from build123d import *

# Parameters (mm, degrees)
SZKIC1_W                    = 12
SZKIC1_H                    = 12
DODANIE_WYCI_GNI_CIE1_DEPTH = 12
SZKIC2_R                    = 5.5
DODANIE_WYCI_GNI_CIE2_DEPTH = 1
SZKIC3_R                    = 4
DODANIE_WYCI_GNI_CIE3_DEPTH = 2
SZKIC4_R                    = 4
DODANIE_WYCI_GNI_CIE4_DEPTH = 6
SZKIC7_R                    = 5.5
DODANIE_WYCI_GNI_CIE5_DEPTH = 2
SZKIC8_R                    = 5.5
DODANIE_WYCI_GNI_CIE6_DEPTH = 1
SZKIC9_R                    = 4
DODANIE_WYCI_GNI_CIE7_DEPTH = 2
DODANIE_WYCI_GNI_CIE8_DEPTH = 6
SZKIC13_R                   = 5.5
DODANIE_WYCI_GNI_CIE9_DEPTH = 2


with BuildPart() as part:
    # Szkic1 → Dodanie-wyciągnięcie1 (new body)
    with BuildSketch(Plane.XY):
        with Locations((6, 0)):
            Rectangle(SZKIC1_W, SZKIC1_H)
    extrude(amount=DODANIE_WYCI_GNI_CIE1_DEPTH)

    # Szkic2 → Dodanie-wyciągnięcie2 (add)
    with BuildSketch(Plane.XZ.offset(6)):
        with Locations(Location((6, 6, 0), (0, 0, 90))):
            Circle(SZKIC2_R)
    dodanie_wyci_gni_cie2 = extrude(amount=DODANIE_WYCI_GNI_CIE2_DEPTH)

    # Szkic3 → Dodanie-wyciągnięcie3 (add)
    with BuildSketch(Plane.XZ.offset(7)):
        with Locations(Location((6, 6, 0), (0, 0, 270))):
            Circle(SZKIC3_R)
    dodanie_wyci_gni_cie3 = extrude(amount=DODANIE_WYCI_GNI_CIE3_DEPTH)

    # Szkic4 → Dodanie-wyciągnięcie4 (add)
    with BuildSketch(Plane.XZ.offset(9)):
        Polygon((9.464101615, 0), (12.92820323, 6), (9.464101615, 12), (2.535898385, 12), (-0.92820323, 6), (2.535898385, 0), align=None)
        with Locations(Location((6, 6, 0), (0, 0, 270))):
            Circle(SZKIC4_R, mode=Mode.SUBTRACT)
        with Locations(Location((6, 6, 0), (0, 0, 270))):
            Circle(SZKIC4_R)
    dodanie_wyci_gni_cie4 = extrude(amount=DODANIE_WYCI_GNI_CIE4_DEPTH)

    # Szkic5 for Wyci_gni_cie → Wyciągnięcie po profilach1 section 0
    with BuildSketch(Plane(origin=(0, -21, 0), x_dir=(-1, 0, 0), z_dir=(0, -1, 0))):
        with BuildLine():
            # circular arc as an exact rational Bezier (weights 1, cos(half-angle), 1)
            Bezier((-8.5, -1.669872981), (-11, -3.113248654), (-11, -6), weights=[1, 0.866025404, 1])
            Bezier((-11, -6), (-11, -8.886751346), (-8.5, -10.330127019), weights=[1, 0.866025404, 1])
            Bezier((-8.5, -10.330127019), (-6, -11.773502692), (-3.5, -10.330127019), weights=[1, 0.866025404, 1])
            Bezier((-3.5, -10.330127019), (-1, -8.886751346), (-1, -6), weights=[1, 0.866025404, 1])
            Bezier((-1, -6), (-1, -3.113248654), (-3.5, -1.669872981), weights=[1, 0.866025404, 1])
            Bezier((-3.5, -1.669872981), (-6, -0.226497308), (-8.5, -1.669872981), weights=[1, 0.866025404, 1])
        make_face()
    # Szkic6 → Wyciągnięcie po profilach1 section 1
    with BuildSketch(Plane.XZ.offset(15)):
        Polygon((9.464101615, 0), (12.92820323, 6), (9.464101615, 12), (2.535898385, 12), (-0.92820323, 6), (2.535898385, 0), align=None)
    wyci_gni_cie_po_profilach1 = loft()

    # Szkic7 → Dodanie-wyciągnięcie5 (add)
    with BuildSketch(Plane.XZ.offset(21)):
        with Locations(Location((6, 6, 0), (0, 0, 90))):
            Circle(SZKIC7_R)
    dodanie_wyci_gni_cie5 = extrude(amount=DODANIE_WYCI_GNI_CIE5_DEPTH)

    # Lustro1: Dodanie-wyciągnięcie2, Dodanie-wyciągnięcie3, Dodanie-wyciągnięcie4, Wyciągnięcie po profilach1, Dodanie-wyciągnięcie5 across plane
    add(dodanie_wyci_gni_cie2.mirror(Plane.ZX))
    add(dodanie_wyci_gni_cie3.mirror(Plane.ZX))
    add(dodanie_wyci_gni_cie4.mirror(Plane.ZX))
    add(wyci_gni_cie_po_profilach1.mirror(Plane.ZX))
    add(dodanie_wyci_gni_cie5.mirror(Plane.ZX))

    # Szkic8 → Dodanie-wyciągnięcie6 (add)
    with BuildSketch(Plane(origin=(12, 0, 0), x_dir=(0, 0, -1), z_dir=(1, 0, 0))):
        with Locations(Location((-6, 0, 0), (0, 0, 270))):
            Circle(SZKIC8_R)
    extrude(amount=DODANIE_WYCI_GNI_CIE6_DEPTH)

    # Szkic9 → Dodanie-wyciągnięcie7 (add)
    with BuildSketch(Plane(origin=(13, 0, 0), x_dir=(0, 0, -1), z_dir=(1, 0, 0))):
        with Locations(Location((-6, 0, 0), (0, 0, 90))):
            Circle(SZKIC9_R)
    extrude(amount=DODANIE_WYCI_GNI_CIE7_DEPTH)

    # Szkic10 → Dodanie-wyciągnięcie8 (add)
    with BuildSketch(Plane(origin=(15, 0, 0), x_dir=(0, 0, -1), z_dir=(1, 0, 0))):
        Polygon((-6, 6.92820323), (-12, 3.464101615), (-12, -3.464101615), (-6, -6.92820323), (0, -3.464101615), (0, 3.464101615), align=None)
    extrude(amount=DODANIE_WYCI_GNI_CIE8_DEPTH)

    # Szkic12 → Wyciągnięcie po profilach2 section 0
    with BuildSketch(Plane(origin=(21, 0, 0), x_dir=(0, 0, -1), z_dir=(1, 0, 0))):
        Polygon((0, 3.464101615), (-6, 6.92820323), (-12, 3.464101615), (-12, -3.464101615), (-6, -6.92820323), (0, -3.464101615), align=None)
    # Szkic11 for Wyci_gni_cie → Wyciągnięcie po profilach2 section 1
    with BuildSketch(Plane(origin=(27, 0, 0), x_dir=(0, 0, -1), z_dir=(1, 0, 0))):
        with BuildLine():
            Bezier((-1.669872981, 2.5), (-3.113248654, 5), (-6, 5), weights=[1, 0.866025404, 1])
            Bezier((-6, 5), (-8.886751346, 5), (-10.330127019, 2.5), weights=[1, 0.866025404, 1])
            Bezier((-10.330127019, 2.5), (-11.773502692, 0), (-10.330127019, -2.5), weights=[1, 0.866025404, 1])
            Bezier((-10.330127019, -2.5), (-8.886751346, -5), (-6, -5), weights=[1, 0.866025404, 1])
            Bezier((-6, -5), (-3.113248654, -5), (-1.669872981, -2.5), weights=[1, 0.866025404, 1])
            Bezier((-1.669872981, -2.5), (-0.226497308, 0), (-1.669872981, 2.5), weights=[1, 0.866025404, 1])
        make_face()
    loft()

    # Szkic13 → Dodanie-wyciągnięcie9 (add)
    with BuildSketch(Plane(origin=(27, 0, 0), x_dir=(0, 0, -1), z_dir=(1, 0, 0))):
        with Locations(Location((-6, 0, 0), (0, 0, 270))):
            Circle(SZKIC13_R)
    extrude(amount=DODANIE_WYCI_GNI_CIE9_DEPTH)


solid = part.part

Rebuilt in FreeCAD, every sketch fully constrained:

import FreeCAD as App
import Part
import Sketcher

V = App.Vector
Q = App.Units.Quantity


def add_polygon(sketch, points):
    """Adds a closed chain of lines whose ends are joined by coincident constraints."""
    first, n = sketch.GeometryCount, len(points)
    for a, b in zip(points, points[1:] + points[:1]):
        sketch.addGeometry(Part.LineSegment(App.Vector(*a, 0), App.Vector(*b, 0)), False)
    for i in range(n):
        sketch.addConstraint(Sketcher.Constraint("Coincident", first + i, 2, first + (i + 1) % n, 1))

doc = App.newDocument("Part")
body = doc.addObject("PartDesign::Body", "Body")

# Sketch on XY plane
sketch1 = body.newObject("Sketcher::SketchObject", "Sketch")
sketch1.AttachmentSupport = (doc.getObject("XY_Plane"), [""])
sketch1.MapMode = "FlatFace"
add_polygon(sketch1, [(0, 6), (0, -6), (12, -6), (12, 6)])  # lines 0-3
sketch1.addConstraint([
    Sketcher.Constraint("Vertical", 0),
    Sketcher.Constraint("Horizontal", 1),
    Sketcher.Constraint("Vertical", 2),
    Sketcher.Constraint("Horizontal", 3),
    Sketcher.Constraint("Symmetric", 0, 2, 3, 2, -1, 1),
    Sketcher.Constraint("Equal", 3, 0),
    Sketcher.Constraint("DistanceX", 1, 1, 1, 2, Q("12 mm")),
])
pad1 = body.newObject("PartDesign::Pad", "Pad")
pad1.Profile = sketch1
pad1.Length = 12

# Sketch on XZ plane
sketch2 = body.newObject("Sketcher::SketchObject", "Sketch001")
sketch2.AttachmentSupport = (doc.getObject("XZ_Plane"), [""])
sketch2.MapMode = "FlatFace"
sketch2.AttachmentOffset = App.Placement(V(0, 0, 6), App.Rotation())
sketch2.addGeometry(Part.Circle(V(6, 6, 0), V(0, 0, 1), 6), False)
sketch2.addConstraint([
    Sketcher.Constraint("Diameter", 0, Q("11 mm")),
    Sketcher.Constraint("DistanceX", -1, 1, 0, 3, Q("6 mm")),
    Sketcher.Constraint("DistanceY", -1, 1, 0, 3, Q("6 mm")),
])
pad2 = body.newObject("PartDesign::Pad", "Pad001")
pad2.Profile = sketch2
pad2.Length = 1

# Sketch on XZ plane
sketch3 = body.newObject("Sketcher::SketchObject", "Sketch002")
sketch3.AttachmentSupport = (doc.getObject("XZ_Plane"), [""])
sketch3.MapMode = "FlatFace"
sketch3.AttachmentOffset = App.Placement(V(0, 0, 7), App.Rotation())
sketch3.addGeometry(Part.Circle(V(6, 6, 0), V(0, 0, 1), 4), False)
sketch3.addConstraint([
    Sketcher.Constraint("Diameter", 0, Q("8 mm")),
    Sketcher.Constraint("DistanceX", -1, 1, 0, 3, Q("6 mm")),
    Sketcher.Constraint("DistanceY", -1, 1, 0, 3, Q("6 mm")),
])
pad3 = body.newObject("PartDesign::Pad", "Pad002")
pad3.Profile = sketch3
pad3.Length = 2

# Sketch on XZ plane
sketch4 = body.newObject("Sketcher::SketchObject", "Sketch003")
sketch4.AttachmentSupport = (doc.getObject("XZ_Plane"), [""])
sketch4.MapMode = "FlatFace"
sketch4.AttachmentOffset = App.Placement(V(0, 0, 9), App.Rotation())
add_polygon(sketch4, [(9, 0), (13, 6), (9, 12), (3, 12), (-1, 6), (3, 0)])  # lines 0-5
sketch4.addConstraint([
    Sketcher.Constraint("Horizontal", 2),
    Sketcher.Constraint("Horizontal", 5),
    Sketcher.Constraint("PointOnObject", 4, 2, -1),
    Sketcher.Constraint("Parallel", 0, 3),
    Sketcher.Constraint("Parallel", 1, 4),
    Sketcher.Constraint("Horizontal", 0, 2, 3, 2),
    Sketcher.Constraint("Vertical", 2, 2, 4, 2),
    Sketcher.Constraint("Vertical", 1, 2, 5, 2),
    Sketcher.Constraint("Angle", 0, Q("60 deg")),
    Sketcher.Constraint("DistanceY", -1, 1, 0, 2, Q("6 mm")),
    Sketcher.Constraint("DistanceX", -1, 1, 1, 2, Q("9.464102 mm")),
    Sketcher.Constraint("DistanceX", -1, 1, 2, 2, Q("2.535898 mm")),
])
pad4 = body.newObject("PartDesign::Pad", "Pad003")
pad4.Profile = sketch4
pad4.Length = 6

# Sketch on XZ plane
sketch5 = body.newObject("Sketcher::SketchObject", "Sketch004")
sketch5.AttachmentSupport = (doc.getObject("XZ_Plane"), [""])
sketch5.MapMode = "FlatFace"
sketch5.AttachmentOffset = App.Placement(V(0, 0, 21), App.Rotation())
sketch5.addGeometry(Part.BSplineCurve([V(3.5, 1.669873, 0), V(4.366025, 1.169873, 0), V(5.428912, 0.846978, 0), V(6.571088, 0.846978, 0), V(7.633975, 1.169873, 0), V(9.366025, 2.169873, 0), V(10.177105, 2.928912, 0), V(10.748192, 3.918065, 0), V(11, 5, 0), V(11, 7, 0), V(10.748192, 8.081935, 0), V(10.177105, 9.071088, 0), V(9.366025, 9.830127, 0), V(7.633975, 10.830127, 0), V(6.571088, 11.153022, 0), V(5.428912, 11.153022, 0), V(4.366025, 10.830127, 0), V(2.633975, 9.830127, 0), V(1.822895, 9.071088, 0), V(1.251808, 8.081935, 0), V(1, 7, 0), V(1, 5, 0), V(1.251808, 3.918065, 0), V(1.822895, 2.928912, 0), V(2.633975, 2.169873, 0), V(3.5, 1.669873, 0)], [6, 4, 4, 4, 4, 4, 6], [0, 1, 2, 3, 4, 5, 6], False, 5, [1, 1, 0.992820323, 0.992820323, 1, 1, 0.992820323, 0.992820323, 1, 1, 0.992820323, 0.992820323, 1, 1, 0.992820323, 0.992820323, 1, 1, 0.992820323, 0.992820323, 1, 1, 0.992820323, 0.992820323, 1, 1], False), False)
sketch5.addConstraint(Sketcher.Constraint("Block", 0))

# Sketch on XZ plane
sketch6 = body.newObject("Sketcher::SketchObject", "Sketch005")
sketch6.AttachmentSupport = (doc.getObject("XZ_Plane"), [""])
sketch6.MapMode = "FlatFace"
sketch6.AttachmentOffset = App.Placement(V(0, 0, 15), App.Rotation())
add_polygon(sketch6, [(9, 0), (13, 6), (9, 12), (3, 12), (-1, 6), (3, 0)])  # lines 0-5
sketch6.addConstraint([
    Sketcher.Constraint("Horizontal", 2),
    Sketcher.Constraint("Horizontal", 5),
    Sketcher.Constraint("PointOnObject", 4, 2, -1),
    Sketcher.Constraint("Parallel", 0, 3),
    Sketcher.Constraint("Parallel", 1, 4),
    Sketcher.Constraint("Horizontal", 0, 2, 3, 2),
    Sketcher.Constraint("Vertical", 2, 2, 4, 2),
    Sketcher.Constraint("Vertical", 1, 2, 5, 2),
    Sketcher.Constraint("Angle", 0, Q("60 deg")),
    Sketcher.Constraint("DistanceY", -1, 1, 0, 2, Q("6 mm")),
    Sketcher.Constraint("DistanceX", -1, 1, 1, 2, Q("9.464102 mm")),
    Sketcher.Constraint("DistanceX", -1, 1, 2, 2, Q("2.535898 mm")),
])

additiveloft = body.newObject("PartDesign::AdditiveLoft", "AdditiveLoft")
additiveloft.Profile = sketch5
additiveloft.Sections = [sketch6]

# Sketch on XZ plane
sketch7 = body.newObject("Sketcher::SketchObject", "Sketch006")
sketch7.AttachmentSupport = (doc.getObject("XZ_Plane"), [""])
sketch7.MapMode = "FlatFace"
sketch7.AttachmentOffset = App.Placement(V(0, 0, 21), App.Rotation())
sketch7.addGeometry(Part.Circle(V(6, 6, 0), V(0, 0, 1), 6), False)
sketch7.addConstraint([
    Sketcher.Constraint("Diameter", 0, Q("11 mm")),
    Sketcher.Constraint("DistanceX", -1, 1, 0, 3, Q("6 mm")),
    Sketcher.Constraint("DistanceY", -1, 1, 0, 3, Q("6 mm")),
])
pad5 = body.newObject("PartDesign::Pad", "Pad004")
pad5.Profile = sketch7
pad5.Length = 2
doc.recompute()

mirrored = body.newObject("PartDesign::Mirrored", "Mirrored")
mirrored.Originals = [pad2, pad3, pad4, additiveloft, pad5]
mirrored.MirrorPlane = (doc.getObject("XZ_Plane"), [""])
body.Tip = mirrored

# Sketch on YZ plane
sketch8 = body.newObject("Sketcher::SketchObject", "Sketch007")
sketch8.AttachmentSupport = (doc.getObject("YZ_Plane"), [""])
sketch8.MapMode = "FlatFace"
sketch8.AttachmentOffset = App.Placement(V(0, 0, 12), App.Rotation())
sketch8.addGeometry(Part.Circle(V(0, 6, 0), V(0, 0, 1), 6), False)
sketch8.addConstraint([
    Sketcher.Constraint("PointOnObject", 0, 3, -2),
    Sketcher.Constraint("Diameter", 0, Q("11 mm")),
    Sketcher.Constraint("DistanceY", -1, 1, 0, 3, Q("6 mm")),
])
pad6 = body.newObject("PartDesign::Pad", "Pad005")
pad6.Profile = sketch8
pad6.Length = 1

# Sketch on YZ plane
sketch9 = body.newObject("Sketcher::SketchObject", "Sketch008")
sketch9.AttachmentSupport = (doc.getObject("YZ_Plane"), [""])
sketch9.MapMode = "FlatFace"
sketch9.AttachmentOffset = App.Placement(V(0, 0, 13), App.Rotation())
sketch9.addGeometry(Part.Circle(V(0, 6, 0), V(0, 0, 1), 4), False)
sketch9.addConstraint([
    Sketcher.Constraint("PointOnObject", 0, 3, -2),
    Sketcher.Constraint("Diameter", 0, Q("8 mm")),
    Sketcher.Constraint("DistanceY", -1, 1, 0, 3, Q("6 mm")),
])
pad7 = body.newObject("PartDesign::Pad", "Pad006")
pad7.Profile = sketch9
pad7.Length = 2

# Sketch on YZ plane
sketch10 = body.newObject("Sketcher::SketchObject", "Sketch009")
sketch10.AttachmentSupport = (doc.getObject("YZ_Plane"), [""])
sketch10.MapMode = "FlatFace"
sketch10.AttachmentOffset = App.Placement(V(0, 0, 15), App.Rotation())
add_polygon(sketch10, [(7, 6), (3, 12), (-3, 12), (-7, 6), (-3, 0), (3, 0)])  # lines 0-5
sketch10.addConstraint([
    Sketcher.Constraint("Horizontal", 1),
    Sketcher.Constraint("Horizontal", 4),
    Sketcher.Constraint("Symmetric", 3, 2, 4, 2, -1, 1),
    Sketcher.Constraint("Symmetric", 2, 2, 5, 2, -2),
    Sketcher.Constraint("Parallel", 0, 3),
    Sketcher.Constraint("Parallel", 2, 5),
    Sketcher.Constraint("Vertical", 1, 2, 3, 2),
    Sketcher.Constraint("Angle", 0, Q("120 deg")),
    Sketcher.Constraint("DistanceY", -1, 1, 0, 2, Q("12 mm")),
    Sketcher.Constraint("DistanceX", -1, 1, 0, 2, Q("3.464102 mm")),
])
pad8 = body.newObject("PartDesign::Pad", "Pad007")
pad8.Profile = sketch10
pad8.Length = 6

# Sketch on YZ plane
sketch11 = body.newObject("Sketcher::SketchObject", "Sketch010")
sketch11.AttachmentSupport = (doc.getObject("YZ_Plane"), [""])
sketch11.MapMode = "FlatFace"
sketch11.AttachmentOffset = App.Placement(V(0, 0, 21), App.Rotation())
add_polygon(sketch11, [(3, 0), (7, 6), (3, 12), (-3, 12), (-7, 6), (-3, 0)])  # lines 0-5
sketch11.addConstraint([
    Sketcher.Constraint("Horizontal", 2),
    Sketcher.Constraint("Horizontal", 5),
    Sketcher.Constraint("Symmetric", 4, 2, 5, 2, -1, 1),
    Sketcher.Constraint("Symmetric", 0, 2, 3, 2, -2),
    Sketcher.Constraint("Parallel", 0, 3),
    Sketcher.Constraint("Parallel", 1, 4),
    Sketcher.Constraint("Vertical", 2, 2, 4, 2),
    Sketcher.Constraint("Angle", 0, Q("60 deg")),
    Sketcher.Constraint("DistanceY", -1, 1, 0, 2, Q("6 mm")),
    Sketcher.Constraint("DistanceX", -1, 1, 1, 2, Q("3.464102 mm")),
])

# Sketch on YZ plane
sketch12 = body.newObject("Sketcher::SketchObject", "Sketch011")
sketch12.AttachmentSupport = (doc.getObject("YZ_Plane"), [""])
sketch12.MapMode = "FlatFace"
sketch12.AttachmentOffset = App.Placement(V(0, 0, 27), App.Rotation())
sketch12.addGeometry(Part.BSplineCurve([V(-2.5, 1.669873, 0), V(-1.633975, 1.169873, 0), V(-0.571088, 0.846978, 0), V(0.571088, 0.846978, 0), V(1.633975, 1.169873, 0), V(3.366025, 2.169873, 0), V(4.177105, 2.928912, 0), V(4.748192, 3.918065, 0), V(5, 5, 0), V(5, 7, 0), V(4.748192, 8.081935, 0), V(4.177105, 9.071088, 0), V(3.366025, 9.830127, 0), V(1.633975, 10.830127, 0), V(0.571088, 11.153022, 0), V(-0.571088, 11.153022, 0), V(-1.633975, 10.830127, 0), V(-3.366025, 9.830127, 0), V(-4.177105, 9.071088, 0), V(-4.748192, 8.081935, 0), V(-5, 7, 0), V(-5, 5, 0), V(-4.748192, 3.918065, 0), V(-4.177105, 2.928912, 0), V(-3.366025, 2.169873, 0), V(-2.5, 1.669873, 0)], [6, 4, 4, 4, 4, 4, 6], [0, 1, 2, 3, 4, 5, 6], False, 5, [1, 1, 0.992820323, 0.992820323, 1, 1, 0.992820323, 0.992820323, 1, 1, 0.992820323, 0.992820323, 1, 1, 0.992820323, 0.992820323, 1, 1, 0.992820323, 0.992820323, 1, 1, 0.992820323, 0.992820323, 1, 1], False), False)
sketch12.addConstraint(Sketcher.Constraint("Block", 0))

additiveloft2 = body.newObject("PartDesign::AdditiveLoft", "AdditiveLoft001")
additiveloft2.Profile = sketch11
additiveloft2.Sections = [sketch12]

# Sketch on YZ plane
sketch13 = body.newObject("Sketcher::SketchObject", "Sketch012")
sketch13.AttachmentSupport = (doc.getObject("YZ_Plane"), [""])
sketch13.MapMode = "FlatFace"
sketch13.AttachmentOffset = App.Placement(V(0, 0, 27), App.Rotation())
sketch13.addGeometry(Part.Circle(V(0, 6, 0), V(0, 0, 1), 6), False)
sketch13.addConstraint([
    Sketcher.Constraint("PointOnObject", 0, 3, -2),
    Sketcher.Constraint("Diameter", 0, Q("11 mm")),
    Sketcher.Constraint("DistanceY", -1, 1, 0, 3, Q("6 mm")),
])
pad9 = body.newObject("PartDesign::Pad", "Pad008")
pad9.Profile = sketch13
pad9.Length = 2

doc.recompute()
